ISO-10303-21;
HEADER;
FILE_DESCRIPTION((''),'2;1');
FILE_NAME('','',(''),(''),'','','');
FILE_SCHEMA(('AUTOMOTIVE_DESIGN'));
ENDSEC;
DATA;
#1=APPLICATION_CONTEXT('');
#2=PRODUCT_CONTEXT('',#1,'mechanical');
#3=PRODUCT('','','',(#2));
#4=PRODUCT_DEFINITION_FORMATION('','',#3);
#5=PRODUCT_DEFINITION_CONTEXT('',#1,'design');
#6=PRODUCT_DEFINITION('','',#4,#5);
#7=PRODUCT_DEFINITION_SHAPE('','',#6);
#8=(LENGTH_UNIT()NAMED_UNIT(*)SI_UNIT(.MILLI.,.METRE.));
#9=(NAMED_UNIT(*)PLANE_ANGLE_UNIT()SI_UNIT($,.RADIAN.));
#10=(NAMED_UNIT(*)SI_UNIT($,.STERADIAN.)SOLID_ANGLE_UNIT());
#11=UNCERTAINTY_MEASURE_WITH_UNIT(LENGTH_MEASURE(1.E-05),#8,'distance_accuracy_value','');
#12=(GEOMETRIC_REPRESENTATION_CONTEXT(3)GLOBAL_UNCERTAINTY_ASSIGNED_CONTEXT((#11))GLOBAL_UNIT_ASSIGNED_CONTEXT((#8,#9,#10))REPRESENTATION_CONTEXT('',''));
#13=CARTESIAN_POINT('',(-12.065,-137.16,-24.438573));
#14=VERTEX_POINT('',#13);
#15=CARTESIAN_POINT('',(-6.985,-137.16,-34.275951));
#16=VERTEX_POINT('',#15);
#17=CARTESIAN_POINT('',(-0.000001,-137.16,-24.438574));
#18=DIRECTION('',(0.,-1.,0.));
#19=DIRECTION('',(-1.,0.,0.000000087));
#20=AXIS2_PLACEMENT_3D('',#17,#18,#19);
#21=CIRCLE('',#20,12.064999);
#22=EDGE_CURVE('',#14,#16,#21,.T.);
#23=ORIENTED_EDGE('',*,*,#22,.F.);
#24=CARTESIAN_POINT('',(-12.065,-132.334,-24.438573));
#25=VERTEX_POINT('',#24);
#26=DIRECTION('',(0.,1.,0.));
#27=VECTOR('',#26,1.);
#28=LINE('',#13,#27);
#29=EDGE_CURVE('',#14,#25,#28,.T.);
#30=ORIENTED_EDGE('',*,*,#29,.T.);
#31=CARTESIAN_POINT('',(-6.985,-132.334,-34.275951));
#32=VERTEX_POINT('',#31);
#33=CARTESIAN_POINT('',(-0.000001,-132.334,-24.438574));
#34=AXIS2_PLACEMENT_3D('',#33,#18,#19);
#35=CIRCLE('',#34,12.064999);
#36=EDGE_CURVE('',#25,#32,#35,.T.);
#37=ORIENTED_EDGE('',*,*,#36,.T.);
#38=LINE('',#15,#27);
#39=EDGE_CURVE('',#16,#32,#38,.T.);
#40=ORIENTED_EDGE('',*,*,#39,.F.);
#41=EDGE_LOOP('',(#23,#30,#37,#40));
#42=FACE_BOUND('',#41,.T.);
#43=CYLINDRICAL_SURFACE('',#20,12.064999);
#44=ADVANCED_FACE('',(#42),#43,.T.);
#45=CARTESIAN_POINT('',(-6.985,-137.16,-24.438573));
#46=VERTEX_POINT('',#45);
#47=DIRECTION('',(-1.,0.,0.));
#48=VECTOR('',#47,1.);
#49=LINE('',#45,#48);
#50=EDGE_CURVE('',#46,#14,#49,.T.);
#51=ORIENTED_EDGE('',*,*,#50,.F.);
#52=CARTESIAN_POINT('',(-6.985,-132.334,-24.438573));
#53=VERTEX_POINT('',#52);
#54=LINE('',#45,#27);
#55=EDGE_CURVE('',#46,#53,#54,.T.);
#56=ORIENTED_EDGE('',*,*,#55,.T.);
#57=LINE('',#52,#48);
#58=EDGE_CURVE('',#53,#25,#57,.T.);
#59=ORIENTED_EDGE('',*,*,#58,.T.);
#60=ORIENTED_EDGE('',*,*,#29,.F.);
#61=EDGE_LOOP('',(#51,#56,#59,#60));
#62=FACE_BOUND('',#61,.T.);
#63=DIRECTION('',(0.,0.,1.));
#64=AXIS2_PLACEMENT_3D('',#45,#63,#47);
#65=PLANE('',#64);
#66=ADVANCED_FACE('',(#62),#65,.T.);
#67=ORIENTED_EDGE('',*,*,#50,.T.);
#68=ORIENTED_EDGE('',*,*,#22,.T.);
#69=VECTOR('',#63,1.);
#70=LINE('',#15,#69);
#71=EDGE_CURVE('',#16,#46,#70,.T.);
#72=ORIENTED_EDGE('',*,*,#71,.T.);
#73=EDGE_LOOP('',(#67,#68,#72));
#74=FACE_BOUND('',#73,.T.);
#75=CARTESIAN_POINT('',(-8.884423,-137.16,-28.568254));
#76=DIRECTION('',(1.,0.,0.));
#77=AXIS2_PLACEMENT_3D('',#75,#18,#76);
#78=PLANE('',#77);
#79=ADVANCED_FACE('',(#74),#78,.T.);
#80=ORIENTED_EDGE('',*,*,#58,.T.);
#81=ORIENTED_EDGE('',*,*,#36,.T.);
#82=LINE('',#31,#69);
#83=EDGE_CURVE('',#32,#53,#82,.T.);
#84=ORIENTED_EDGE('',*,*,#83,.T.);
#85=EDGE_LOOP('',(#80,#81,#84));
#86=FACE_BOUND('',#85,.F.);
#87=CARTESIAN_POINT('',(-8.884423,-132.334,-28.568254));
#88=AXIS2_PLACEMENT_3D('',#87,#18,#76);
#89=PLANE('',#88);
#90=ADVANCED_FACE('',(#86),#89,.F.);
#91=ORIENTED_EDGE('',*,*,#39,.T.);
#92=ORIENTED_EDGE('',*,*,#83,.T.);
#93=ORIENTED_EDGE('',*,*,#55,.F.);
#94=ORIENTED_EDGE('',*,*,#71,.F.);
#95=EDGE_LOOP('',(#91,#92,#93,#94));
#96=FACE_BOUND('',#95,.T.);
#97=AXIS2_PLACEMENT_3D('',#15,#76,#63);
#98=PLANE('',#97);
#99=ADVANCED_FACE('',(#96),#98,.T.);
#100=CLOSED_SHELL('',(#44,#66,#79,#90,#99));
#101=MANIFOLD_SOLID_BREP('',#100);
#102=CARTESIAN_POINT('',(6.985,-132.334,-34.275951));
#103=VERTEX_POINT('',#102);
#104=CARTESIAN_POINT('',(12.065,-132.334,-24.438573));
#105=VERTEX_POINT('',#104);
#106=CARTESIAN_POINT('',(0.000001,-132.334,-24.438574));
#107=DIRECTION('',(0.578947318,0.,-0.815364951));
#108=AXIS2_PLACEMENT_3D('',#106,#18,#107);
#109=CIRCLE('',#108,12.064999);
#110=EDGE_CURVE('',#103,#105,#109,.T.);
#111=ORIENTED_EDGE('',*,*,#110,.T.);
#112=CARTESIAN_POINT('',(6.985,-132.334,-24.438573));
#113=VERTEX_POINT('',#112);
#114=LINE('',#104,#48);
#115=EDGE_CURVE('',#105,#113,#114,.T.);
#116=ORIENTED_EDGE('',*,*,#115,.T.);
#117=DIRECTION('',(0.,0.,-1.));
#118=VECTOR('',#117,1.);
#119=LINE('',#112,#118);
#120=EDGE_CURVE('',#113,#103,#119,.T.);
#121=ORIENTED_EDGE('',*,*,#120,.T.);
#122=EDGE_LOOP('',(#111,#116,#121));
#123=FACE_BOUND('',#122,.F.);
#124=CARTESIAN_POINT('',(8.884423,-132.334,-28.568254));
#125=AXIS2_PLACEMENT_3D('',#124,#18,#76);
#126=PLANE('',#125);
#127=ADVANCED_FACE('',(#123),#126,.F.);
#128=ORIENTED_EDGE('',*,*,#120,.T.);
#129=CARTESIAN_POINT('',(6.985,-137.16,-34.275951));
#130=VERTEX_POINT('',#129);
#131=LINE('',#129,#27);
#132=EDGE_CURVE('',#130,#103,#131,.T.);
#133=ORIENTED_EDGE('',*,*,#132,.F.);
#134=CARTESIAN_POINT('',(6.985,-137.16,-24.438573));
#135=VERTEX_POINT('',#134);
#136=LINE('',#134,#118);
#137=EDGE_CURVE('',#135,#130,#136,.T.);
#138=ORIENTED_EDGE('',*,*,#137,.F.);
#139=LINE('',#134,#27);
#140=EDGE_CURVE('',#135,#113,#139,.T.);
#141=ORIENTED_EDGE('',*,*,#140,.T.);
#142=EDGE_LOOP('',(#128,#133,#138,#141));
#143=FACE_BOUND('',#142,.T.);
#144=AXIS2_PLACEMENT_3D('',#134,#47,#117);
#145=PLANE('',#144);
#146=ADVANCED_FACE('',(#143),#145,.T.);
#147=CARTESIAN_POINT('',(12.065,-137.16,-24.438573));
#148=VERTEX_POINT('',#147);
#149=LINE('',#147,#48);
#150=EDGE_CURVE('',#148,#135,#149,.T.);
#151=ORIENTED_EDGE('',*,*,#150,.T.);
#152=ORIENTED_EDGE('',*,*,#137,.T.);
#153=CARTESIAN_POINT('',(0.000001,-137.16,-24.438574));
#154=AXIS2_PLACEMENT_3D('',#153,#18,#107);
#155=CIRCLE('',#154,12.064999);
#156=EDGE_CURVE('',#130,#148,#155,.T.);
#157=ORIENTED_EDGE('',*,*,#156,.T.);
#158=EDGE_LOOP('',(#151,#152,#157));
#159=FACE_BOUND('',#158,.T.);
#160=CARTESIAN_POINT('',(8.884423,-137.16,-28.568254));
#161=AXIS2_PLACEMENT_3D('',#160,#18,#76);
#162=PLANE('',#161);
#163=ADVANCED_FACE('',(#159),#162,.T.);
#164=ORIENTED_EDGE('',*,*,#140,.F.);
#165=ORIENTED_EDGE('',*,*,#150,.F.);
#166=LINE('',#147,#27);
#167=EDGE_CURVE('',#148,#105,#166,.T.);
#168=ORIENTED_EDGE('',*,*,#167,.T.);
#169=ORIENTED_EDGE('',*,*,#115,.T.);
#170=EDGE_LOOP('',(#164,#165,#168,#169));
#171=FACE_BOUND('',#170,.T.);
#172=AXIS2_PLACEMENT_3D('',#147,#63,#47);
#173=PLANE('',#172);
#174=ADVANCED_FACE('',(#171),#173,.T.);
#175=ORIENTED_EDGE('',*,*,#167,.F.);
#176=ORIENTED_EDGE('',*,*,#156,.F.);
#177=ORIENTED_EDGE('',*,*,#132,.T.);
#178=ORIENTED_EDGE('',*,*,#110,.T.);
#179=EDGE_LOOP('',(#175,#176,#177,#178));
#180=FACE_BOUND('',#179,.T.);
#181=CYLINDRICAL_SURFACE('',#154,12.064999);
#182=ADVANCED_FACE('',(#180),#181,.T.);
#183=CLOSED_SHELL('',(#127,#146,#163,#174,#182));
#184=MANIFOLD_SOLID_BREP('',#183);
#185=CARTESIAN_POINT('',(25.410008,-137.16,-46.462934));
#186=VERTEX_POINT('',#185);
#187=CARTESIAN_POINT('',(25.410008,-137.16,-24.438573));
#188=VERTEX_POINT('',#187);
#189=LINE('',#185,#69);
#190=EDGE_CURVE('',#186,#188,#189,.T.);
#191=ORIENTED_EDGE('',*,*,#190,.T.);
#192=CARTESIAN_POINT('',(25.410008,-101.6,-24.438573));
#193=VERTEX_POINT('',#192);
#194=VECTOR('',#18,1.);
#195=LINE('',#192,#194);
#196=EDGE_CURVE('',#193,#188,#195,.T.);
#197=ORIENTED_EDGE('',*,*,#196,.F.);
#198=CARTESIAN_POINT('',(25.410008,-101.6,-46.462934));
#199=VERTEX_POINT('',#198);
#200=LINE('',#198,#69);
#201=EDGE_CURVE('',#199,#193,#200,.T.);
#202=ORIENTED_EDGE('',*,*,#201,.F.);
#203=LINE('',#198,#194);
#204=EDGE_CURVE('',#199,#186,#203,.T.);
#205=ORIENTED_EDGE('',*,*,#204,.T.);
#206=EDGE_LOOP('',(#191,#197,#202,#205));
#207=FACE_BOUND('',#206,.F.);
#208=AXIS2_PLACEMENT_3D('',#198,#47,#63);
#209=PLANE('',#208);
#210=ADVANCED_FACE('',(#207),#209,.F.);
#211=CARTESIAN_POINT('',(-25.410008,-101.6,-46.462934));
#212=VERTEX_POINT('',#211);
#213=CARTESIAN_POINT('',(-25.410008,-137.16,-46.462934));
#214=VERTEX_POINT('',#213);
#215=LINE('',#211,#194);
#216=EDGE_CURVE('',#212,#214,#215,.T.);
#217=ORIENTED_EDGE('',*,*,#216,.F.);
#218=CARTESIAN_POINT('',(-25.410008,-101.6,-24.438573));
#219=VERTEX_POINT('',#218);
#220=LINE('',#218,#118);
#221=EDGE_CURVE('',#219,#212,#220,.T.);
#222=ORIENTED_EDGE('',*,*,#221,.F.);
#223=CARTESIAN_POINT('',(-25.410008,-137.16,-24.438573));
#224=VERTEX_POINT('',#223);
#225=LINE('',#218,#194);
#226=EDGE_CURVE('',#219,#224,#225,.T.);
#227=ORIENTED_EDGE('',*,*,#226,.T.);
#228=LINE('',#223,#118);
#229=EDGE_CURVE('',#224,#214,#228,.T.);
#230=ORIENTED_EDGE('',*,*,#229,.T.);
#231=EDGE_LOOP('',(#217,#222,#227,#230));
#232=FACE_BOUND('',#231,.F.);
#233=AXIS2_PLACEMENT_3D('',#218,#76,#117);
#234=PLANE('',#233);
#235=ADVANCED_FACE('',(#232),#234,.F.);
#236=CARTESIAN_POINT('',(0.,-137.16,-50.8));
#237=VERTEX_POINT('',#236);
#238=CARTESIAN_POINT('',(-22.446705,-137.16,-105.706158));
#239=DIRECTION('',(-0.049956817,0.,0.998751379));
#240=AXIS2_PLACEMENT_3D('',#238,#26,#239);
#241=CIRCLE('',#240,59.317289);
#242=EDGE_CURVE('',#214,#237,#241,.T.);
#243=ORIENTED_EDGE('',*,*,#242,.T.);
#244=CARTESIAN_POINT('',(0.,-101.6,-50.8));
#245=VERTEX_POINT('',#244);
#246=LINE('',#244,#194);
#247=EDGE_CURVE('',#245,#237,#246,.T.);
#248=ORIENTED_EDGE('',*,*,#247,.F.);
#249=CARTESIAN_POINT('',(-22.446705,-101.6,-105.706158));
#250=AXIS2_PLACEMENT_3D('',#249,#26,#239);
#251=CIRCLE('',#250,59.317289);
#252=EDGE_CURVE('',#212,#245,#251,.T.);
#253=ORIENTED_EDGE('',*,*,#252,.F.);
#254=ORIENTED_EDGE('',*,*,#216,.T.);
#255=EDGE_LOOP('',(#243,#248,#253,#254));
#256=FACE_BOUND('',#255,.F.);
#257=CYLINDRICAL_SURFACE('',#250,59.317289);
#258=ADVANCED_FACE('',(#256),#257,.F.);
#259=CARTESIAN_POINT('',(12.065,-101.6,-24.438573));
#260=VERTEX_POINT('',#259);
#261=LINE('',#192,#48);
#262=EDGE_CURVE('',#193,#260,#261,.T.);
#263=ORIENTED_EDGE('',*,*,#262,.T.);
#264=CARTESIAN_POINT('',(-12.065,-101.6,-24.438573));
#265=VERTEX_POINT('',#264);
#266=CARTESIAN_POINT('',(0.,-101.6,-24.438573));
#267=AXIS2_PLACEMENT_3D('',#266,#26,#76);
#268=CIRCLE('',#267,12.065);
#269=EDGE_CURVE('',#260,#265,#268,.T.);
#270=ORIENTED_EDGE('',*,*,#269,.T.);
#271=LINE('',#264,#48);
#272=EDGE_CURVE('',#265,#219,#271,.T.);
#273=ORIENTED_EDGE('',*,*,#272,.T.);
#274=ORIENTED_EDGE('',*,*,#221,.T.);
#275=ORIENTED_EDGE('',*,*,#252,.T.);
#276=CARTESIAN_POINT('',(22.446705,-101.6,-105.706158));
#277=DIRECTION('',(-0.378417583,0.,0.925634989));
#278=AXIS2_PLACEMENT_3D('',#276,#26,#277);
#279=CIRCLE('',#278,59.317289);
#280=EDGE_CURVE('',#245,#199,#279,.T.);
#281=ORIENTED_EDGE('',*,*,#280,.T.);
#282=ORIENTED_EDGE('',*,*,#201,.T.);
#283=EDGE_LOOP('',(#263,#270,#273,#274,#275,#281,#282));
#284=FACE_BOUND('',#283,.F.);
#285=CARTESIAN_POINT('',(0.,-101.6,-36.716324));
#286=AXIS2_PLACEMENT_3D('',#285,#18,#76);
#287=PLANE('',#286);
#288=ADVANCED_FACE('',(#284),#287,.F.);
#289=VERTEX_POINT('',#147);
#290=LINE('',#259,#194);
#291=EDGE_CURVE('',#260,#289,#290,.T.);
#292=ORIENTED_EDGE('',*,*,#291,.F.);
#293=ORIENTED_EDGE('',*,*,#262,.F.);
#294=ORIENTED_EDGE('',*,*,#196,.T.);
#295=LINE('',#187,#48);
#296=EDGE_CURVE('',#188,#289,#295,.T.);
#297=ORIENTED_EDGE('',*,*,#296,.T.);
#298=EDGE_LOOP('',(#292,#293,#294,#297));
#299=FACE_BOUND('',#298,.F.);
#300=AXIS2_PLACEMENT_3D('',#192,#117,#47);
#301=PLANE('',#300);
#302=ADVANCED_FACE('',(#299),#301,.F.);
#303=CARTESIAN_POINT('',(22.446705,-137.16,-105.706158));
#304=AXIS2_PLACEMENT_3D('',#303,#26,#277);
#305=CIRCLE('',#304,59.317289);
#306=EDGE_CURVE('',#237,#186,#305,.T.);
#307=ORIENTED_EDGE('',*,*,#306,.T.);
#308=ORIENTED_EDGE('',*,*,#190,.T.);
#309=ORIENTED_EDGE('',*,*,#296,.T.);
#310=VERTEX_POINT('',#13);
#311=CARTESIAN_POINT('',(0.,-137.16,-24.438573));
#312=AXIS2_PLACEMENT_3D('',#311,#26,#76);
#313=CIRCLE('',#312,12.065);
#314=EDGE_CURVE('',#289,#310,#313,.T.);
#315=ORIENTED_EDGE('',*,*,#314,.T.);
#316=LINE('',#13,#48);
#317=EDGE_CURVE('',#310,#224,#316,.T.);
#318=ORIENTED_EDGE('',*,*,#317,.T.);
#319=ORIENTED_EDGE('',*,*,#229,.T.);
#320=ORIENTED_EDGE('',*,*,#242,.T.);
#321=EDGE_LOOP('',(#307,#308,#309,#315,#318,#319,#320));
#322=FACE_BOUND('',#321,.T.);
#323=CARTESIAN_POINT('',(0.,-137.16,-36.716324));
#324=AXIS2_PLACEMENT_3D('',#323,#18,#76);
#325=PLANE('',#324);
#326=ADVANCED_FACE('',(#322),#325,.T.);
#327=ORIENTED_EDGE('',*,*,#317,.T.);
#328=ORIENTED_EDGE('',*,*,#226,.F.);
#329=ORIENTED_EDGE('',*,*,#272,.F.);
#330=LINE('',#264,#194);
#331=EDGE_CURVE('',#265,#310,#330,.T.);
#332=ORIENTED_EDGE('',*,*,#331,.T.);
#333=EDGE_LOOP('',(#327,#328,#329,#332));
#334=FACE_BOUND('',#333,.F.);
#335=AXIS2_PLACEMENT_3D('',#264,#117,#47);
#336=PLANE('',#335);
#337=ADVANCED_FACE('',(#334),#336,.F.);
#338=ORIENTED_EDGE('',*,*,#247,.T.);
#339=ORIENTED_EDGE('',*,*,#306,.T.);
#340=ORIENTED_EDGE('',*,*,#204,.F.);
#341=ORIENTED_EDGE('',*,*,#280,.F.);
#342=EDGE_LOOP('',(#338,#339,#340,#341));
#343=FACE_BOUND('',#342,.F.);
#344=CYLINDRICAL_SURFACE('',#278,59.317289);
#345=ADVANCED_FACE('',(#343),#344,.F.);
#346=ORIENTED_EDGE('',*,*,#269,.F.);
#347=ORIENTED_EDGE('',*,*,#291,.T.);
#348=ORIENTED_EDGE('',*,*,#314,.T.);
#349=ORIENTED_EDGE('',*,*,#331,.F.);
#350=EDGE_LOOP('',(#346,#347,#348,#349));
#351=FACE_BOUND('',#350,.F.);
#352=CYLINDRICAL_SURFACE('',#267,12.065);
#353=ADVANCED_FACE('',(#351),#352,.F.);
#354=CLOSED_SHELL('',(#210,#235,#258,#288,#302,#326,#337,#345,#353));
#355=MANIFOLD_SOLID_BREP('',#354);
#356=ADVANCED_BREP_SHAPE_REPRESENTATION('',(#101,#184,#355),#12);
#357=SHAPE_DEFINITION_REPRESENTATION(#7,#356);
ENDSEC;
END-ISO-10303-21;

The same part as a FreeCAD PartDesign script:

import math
import FreeCAD as App
import Part
import Sketcher
Q = App.Units.Quantity

doc = App.newDocument("Part")
params = doc.addObject("Spreadsheet::Sheet", "Params")
for row, (alias, value) in enumerate([
    ("sketch1_radius", "0.475 in"),
    ("pad1_length", "1.4 in"),
    ("sketch2_width", "0.2 in"),
    ("sketch2_radius", "0.4749999 in"),
    ("pad2_length", "0.19 in"),
], start=1):
    params.set(f"A{row}", alias)
    params.set(f"B{row}", "=" + value)
    params.setAlias(f"B{row}", alias)

body = doc.addObject("PartDesign::Body", "Body")

# Sketch on XZ plane
sketch1 = body.newObject("Sketcher::SketchObject", "Sketch")
sketch1.AttachmentSupport = (doc.getObject("XZ_Plane"), [""])
sketch1.MapMode = "FlatFace"
sketch1.AttachmentOffset = App.Placement(App.Vector(0, 0, 4 * 25.4), App.Rotation())
sketch1.addGeometry(Part.ArcOfCircle(Part.Circle(App.Vector(-22.446705, -105.706158, 0), App.Vector(0, 0, 1), 59.317289), math.radians(67.764302), math.radians(92.863507)), False)
sketch1.addGeometry(Part.ArcOfCircle(Part.Circle(App.Vector(22.446705, -105.706158, 0), App.Vector(0, 0, 1), 59.317289), math.radians(87.136493), math.radians(112.235698)), False)
sketch1.addGeometry(Part.LineSegment(App.Vector(25.410008, -46.462934, 0), App.Vector(25.410008, -24.438573, 0)), False)
sketch1.addGeometry(Part.LineSegment(App.Vector(25.410008, -24.438573, 0), App.Vector(12.065, -24.438573, 0)), False)
sketch1.addGeometry(Part.ArcOfCircle(Part.Circle(App.Vector(0, -24.438573, 0), App.Vector(0, 0, 1), 12.065), math.radians(180), math.radians(360)), False)
sketch1.addGeometry(Part.LineSegment(App.Vector(-12.065, -24.438573, 0), App.Vector(-25.410008, -24.438573, 0)), False)
sketch1.addGeometry(Part.LineSegment(App.Vector(-25.410008, -24.438573, 0), App.Vector(-25.410008, -46.462934, 0)), False)
sketch1.addConstraint(Sketcher.Constraint("Coincident", 0, 1, 1, 2))
sketch1.addConstraint(Sketcher.Constraint("Coincident", 1, 1, 2, 1))
sketch1.addConstraint(Sketcher.Constraint("Coincident", 2, 2, 3, 1))
sketch1.addConstraint(Sketcher.Constraint("Coincident", 3, 2, 4, 2))
sketch1.addConstraint(Sketcher.Constraint("Coincident", 4, 1, 5, 1))
sketch1.addConstraint(Sketcher.Constraint("Coincident", 5, 2, 6, 1))
sketch1.addConstraint(Sketcher.Constraint("Coincident", 6, 2, 0, 2))
sketch1.addConstraint(Sketcher.Constraint("Vertical", 2))
sketch1.addConstraint(Sketcher.Constraint("Horizontal", 3))
sketch1.addConstraint(Sketcher.Constraint("Horizontal", 5))
sketch1.addConstraint(Sketcher.Constraint("Vertical", 6))
sketch1.addConstraint(Sketcher.Constraint("Equal", 0, 1))
sketch1.addConstraint(Sketcher.Constraint("Symmetric", 0, 3, 1, 3, -2))
sketch1.addConstraint(Sketcher.Constraint("Symmetric", 3, 2, 4, 1, -2))
sketch1.addConstraint(Sketcher.Constraint("Horizontal", 4, 3, 2, 2))
sketch1.addConstraint(Sketcher.Constraint("Horizontal", 1, 1, 6, 2))
sketch1.addConstraint(Sketcher.Constraint("DistanceY", 0, 1, -1, 1, Q("2 in")))
sketch1.addConstraint(Sketcher.Constraint("Radius", 4, Q("0.475 in")))
sketch1.addConstraint(Sketcher.Constraint("Radius", 0, Q("59.317289 mm")))
sketch1.addConstraint(Sketcher.Constraint("DistanceX", 3, 2, 3, 1, Q("13.345008 mm")))
sketch1.addConstraint(Sketcher.Constraint("DistanceY", 2, 1, 2, 2, Q("22.024361 mm")))
sketch1.addConstraint(Sketcher.Constraint("DistanceX", 0, 3, 1, 3, Q("44.89341 mm")))
sketch1.setExpression("Constraints[17]", "Params.sketch1_radius")
pad1 = body.newObject("PartDesign::Pad", "Pad")
pad1.Profile = sketch1
pad1.setExpression("Length", "Params.pad1_length")
body2 = doc.addObject("PartDesign::Body", "Body001")
body2.AllowCompound = True

# Sketch on XZ plane
sketch2 = body2.newObject("Sketcher::SketchObject", "Sketch001")
sketch2.AttachmentSupport = (doc.getObject("XZ_Plane001"), [""])
sketch2.MapMode = "FlatFace"
sketch2.AttachmentOffset = App.Placement(App.Vector(0, 0, 5.4 * 25.4), App.Rotation())
sketch2.addGeometry(Part.LineSegment(App.Vector(-6.985, -24.438573, 0), App.Vector(-12.065, -24.438573, 0)), False)
sketch2.addGeometry(Part.ArcOfCircle(Part.Circle(App.Vector(-0.000001, -24.438574, 0), App.Vector(0, 0, 1), 12.064999), math.radians(179.999995), math.radians(234.623463)), False)
sketch2.addGeometry(Part.LineSegment(App.Vector(-6.985, -34.275951, 0), App.Vector(-6.985, -24.438573, 0)), False)
sketch2.addGeometry(Part.LineSegment(App.Vector(6.985, -24.438573, 0), App.Vector(6.985, -34.275951, 0)), False)
sketch2.addGeometry(Part.ArcOfCircle(Part.Circle(App.Vector(0.000001, -24.438574, 0), App.Vector(0, 0, 1), 12.064999), math.radians(-54.623463), math.radians(0.000005)), False)
sketch2.addGeometry(Part.LineSegment(App.Vector(12.065, -24.438573, 0), App.Vector(6.985, -24.438573, 0)), False)
sketch2.addConstraint(Sketcher.Constraint("Coincident", 0, 2, 1, 1))
sketch2.addConstraint(Sketcher.Constraint("Coincident", 1, 2, 2, 1))
sketch2.addConstraint(Sketcher.Constraint("Coincident", 2, 2, 0, 1))
sketch2.addConstraint(Sketcher.Constraint("Coincident", 3, 2, 4, 1))
sketch2.addConstraint(Sketcher.Constraint("Coincident", 4, 2, 5, 1))
sketch2.addConstraint(Sketcher.Constraint("Coincident", 5, 2, 3, 1))
sketch2.addConstraint(Sketcher.Constraint("Horizontal", 0))
sketch2.addConstraint(Sketcher.Constraint("Vertical", 2))
sketch2.addConstraint(Sketcher.Constraint("Vertical", 3))
sketch2.addConstraint(Sketcher.Constraint("Horizontal", 5))
sketch2.addConstraint(Sketcher.Constraint("Coincident", 4, 3, 1, 3))
sketch2.addConstraint(Sketcher.Constraint("Equal", 1, 4))
sketch2.addConstraint(Sketcher.Constraint("Symmetric", 1, 2, 3, 2, -2))
sketch2.addConstraint(Sketcher.Constraint("Horizontal", 4, 3, 0, 2))
sketch2.addConstraint(Sketcher.Constraint("Horizontal", 2, 2, 4, 2))
sketch2.addConstraint(Sketcher.Constraint("DistanceX", 0, 2, 0, 1, Q("0.2 in")))
sketch2.addConstraint(Sketcher.Constraint("Radius", 1, Q("0.4749999 in")))
sketch2.addConstraint(Sketcher.Constraint("DistanceY", 1, 2, -1, 1, Q("34.275951 mm")))
sketch2.setExpression("Constraints[15]", "Params.sketch2_width")
sketch2.setExpression("Constraints[16]", "Params.sketch2_radius")
pad2 = body2.newObject("PartDesign::Pad", "Pad001")
pad2.Profile = sketch2
pad2.setExpression("Length", "Params.pad2_length")
pad2.Reversed = True

doc.recompute()
